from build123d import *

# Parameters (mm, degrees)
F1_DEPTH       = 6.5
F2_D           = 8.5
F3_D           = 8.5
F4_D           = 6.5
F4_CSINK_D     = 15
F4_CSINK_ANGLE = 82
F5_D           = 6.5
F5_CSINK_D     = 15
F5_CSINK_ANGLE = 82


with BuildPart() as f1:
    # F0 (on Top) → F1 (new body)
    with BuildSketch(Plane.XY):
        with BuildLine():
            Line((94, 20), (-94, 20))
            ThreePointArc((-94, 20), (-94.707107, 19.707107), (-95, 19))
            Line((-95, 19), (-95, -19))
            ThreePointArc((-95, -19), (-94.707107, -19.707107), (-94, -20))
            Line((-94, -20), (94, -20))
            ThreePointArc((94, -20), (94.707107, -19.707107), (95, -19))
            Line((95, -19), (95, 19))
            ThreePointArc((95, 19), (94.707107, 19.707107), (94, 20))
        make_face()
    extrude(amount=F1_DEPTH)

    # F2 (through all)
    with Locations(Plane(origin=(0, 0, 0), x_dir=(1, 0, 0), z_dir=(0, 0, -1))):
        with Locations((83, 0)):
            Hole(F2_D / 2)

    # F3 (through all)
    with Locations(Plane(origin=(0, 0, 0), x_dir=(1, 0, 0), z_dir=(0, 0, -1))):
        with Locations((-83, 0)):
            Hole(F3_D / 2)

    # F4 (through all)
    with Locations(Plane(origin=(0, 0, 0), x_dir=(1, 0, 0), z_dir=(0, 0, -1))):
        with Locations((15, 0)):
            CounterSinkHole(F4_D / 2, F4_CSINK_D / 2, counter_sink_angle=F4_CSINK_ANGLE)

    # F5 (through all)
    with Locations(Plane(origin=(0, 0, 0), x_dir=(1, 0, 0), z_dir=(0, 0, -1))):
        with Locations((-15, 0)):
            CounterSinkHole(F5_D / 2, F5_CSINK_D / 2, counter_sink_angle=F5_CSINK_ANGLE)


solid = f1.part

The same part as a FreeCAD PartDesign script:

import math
import FreeCAD as App
import Part
import Sketcher
from FreeCAD import Vector

doc = App.newDocument("Part")
params = doc.addObject("Spreadsheet::Sheet", "Params")
for row, (alias, value) in enumerate([
    ("sketch1_radius", "0.999999 mm"),
    ("sketch1_width", "188 mm"),
    ("sketch1_height", "38 mm"),
    ("pad1_length", "6.5 mm"),
    ("sketch2_diameter", "8.5 mm"),
    ("hole_diameter", "8.5 mm"),
    ("sketch3_diameter", "8.5 mm"),
    ("hole2_diameter", "8.5 mm"),
    ("sketch4_diameter", "6.5 mm"),
    ("hole3_diameter", "6.5 mm"),
    ("hole3_csink_diameter", "15 mm"),
    ("sketch5_diameter", "6.5 mm"),
    ("hole4_diameter", "6.5 mm"),
    ("hole4_csink_diameter", "15 mm"),
], start=1):
    params.set(f"A{row}", alias)
    params.set(f"B{row}", "=" + value)
    params.setAlias(f"B{row}", alias)

body = doc.addObject("PartDesign::Body", "Body")

sketch1 = body.newObject("Sketcher::SketchObject", "Sketch")
sketch1.AttachmentSupport = (doc.getObject("XY_Plane"), [""])
sketch1.MapMode = "FlatFace"
sketch1.addGeometry([
    Part.LineSegment(Vector(94, 20, 0), Vector(-94, 20, 0)),
    Part.ArcOfCircle(Part.Circle(Vector(-94, 19, 0), Vector(0, 0, 1), 1), math.radians(90), math.radians(180)),
    Part.LineSegment(Vector(-95, 19, 0), Vector(-95, -19, 0)),
    Part.ArcOfCircle(Part.Circle(Vector(-94, -19, 0), Vector(0, 0, 1), 1), math.radians(180), math.radians(270)),
    Part.LineSegment(Vector(-94, -20, 0), Vector(94, -20, 0)),
    Part.ArcOfCircle(Part.Circle(Vector(94, -19, 0), Vector(0, 0, 1), 1), math.radians(-90), math.radians(0)),
    Part.LineSegment(Vector(95, -19, 0), Vector(95, 19, 0)),
    Part.ArcOfCircle(Part.Circle(Vector(94, 19, 0), Vector(0, 0, 1), 1), math.radians(0), math.radians(90)),
], False)
sketch1.addConstraint([
    Sketcher.Constraint("Tangent", 0, 2, 1, 1),
    Sketcher.Constraint("Tangent", 1, 2, 2, 1),
    Sketcher.Constraint("Tangent", 2, 2, 3, 1),
    Sketcher.Constraint("Tangent", 3, 2, 4, 1),
    Sketcher.Constraint("Tangent", 4, 2, 5, 1),
    Sketcher.Constraint("Tangent", 5, 2, 6, 1),
    Sketcher.Constraint("Tangent", 6, 2, 7, 1),
    Sketcher.Constraint("Tangent", 7, 2, 0, 1),
    Sketcher.Constraint("Horizontal", 0),
    Sketcher.Constraint("Vertical", 2),
    Sketcher.Constraint("Horizontal", 4),
    Sketcher.Constraint("Vertical", 6),
    Sketcher.Constraint("Equal", 1, 3),
    Sketcher.Constraint("Equal", 3, 5),
    Sketcher.Constraint("Equal", 5, 7),
    Sketcher.Constraint("Symmetric", 1, 3, 5, 3, -1, 1),
    Sketcher.Constraint("Radius", 1, 0.999999),
    Sketcher.Constraint("DistanceX", 0, 2, 0, 1, 188.0),
    Sketcher.Constraint("DistanceY", 2, 2, 2, 1, 38.0),
])
sketch1.setExpression("Constraints[16]", "Params.sketch1_radius")
sketch1.setExpression("Constraints[17]", "Params.sketch1_width")
sketch1.setExpression("Constraints[18]", "Params.sketch1_height")
pad1 = body.newObject("PartDesign::Pad", "Pad")
pad1.Profile = sketch1
pad1.setExpression("Length", "Params.pad1_length")

sketch2 = body.newObject("Sketcher::SketchObject", "Sketch001")
sketch2.AttachmentSupport = (doc.getObject("XY_Plane"), [""])
sketch2.MapMode = "FlatFace"
sketch2.addGeometry(Part.Circle(Vector(83, 0, 0), Vector(0, 0, 1), 4.2), False)
sketch2.addConstraint([
    Sketcher.Constraint("PointOnObject", 0, 3, -1),
    Sketcher.Constraint("Diameter", 0, 8.5),
    Sketcher.Constraint("DistanceX", -1, 1, 0, 3, 83.0),
])
sketch2.setExpression("Constraints[1]", "Params.sketch2_diameter")
doc.recompute()
hole = body.newObject("PartDesign::Hole", "Hole")
hole.Profile = sketch2
hole.ThreadType = "None"
hole.setExpression("Diameter", "Params.hole_diameter")
hole.DepthType = "ThroughAll"
hole.Reversed = True

sketch3 = body.newObject("Sketcher::SketchObject", "Sketch002")
sketch3.AttachmentSupport = (doc.getObject("XY_Plane"), [""])
sketch3.MapMode = "FlatFace"
sketch3.addGeometry(Part.Circle(Vector(-83, 0, 0), Vector(0, 0, 1), 4.2), False)
sketch3.addConstraint([
    Sketcher.Constraint("PointOnObject", 0, 3, -1),
    Sketcher.Constraint("Diameter", 0, 8.5),
    Sketcher.Constraint("DistanceX", 0, 3, -1, 1, 83.0),
])
sketch3.setExpression("Constraints[1]", "Params.sketch3_diameter")
doc.recompute()
hole2 = body.newObject("PartDesign::Hole", "Hole001")
hole2.Profile = sketch3
hole2.ThreadType = "None"
hole2.setExpression("Diameter", "Params.hole2_diameter")
hole2.DepthType = "ThroughAll"
hole2.Reversed = True

sketch4 = body.newObject("Sketcher::SketchObject", "Sketch003")
sketch4.AttachmentSupport = (doc.getObject("XY_Plane"), [""])
sketch4.MapMode = "FlatFace"
sketch4.addGeometry(Part.Circle(Vector(15, 0, 0), Vector(0, 0, 1), 3.2), False)
sketch4.addConstraint([
    Sketcher.Constraint("PointOnObject", 0, 3, -1),
    Sketcher.Constraint("Diameter", 0, 6.5),
    Sketcher.Constraint("DistanceX", -1, 1, 0, 3, 15.0),
])
sketch4.setExpression("Constraints[1]", "Params.sketch4_diameter")
doc.recompute()
hole3 = body.newObject("PartDesign::Hole", "Hole002")
hole3.Profile = sketch4
hole3.ThreadType = "None"
hole3.setExpression("Diameter", "Params.hole3_diameter")
hole3.DepthType = "ThroughAll"
hole3.HoleCutType = "Countersink"
hole3.setExpression("HoleCutDiameter", "Params.hole3_csink_diameter")
hole3.HoleCutCountersinkAngle = 82
hole3.Reversed = True

sketch5 = body.newObject("Sketcher::SketchObject", "Sketch004")
sketch5.AttachmentSupport = (doc.getObject("XY_Plane"), [""])
sketch5.MapMode = "FlatFace"
sketch5.addGeometry(Part.Circle(Vector(-15, 0, 0), Vector(0, 0, 1), 3.2), False)
sketch5.addConstraint([
    Sketcher.Constraint("PointOnObject", 0, 3, -1),
    Sketcher.Constraint("Diameter", 0, 6.5),
    Sketcher.Constraint("DistanceX", 0, 3, -1, 1, 15.0),
])
sketch5.setExpression("Constraints[1]", "Params.sketch5_diameter")
doc.recompute()
hole4 = body.newObject("PartDesign::Hole", "Hole003")
hole4.Profile = sketch5
hole4.ThreadType = "None"
hole4.setExpression("Diameter", "Params.hole4_diameter")
hole4.DepthType = "ThroughAll"
hole4.HoleCutType = "Countersink"
hole4.setExpression("HoleCutDiameter", "Params.hole4_csink_diameter")
hole4.HoleCutCountersinkAngle = 82
hole4.Reversed = True

doc.recompute()
